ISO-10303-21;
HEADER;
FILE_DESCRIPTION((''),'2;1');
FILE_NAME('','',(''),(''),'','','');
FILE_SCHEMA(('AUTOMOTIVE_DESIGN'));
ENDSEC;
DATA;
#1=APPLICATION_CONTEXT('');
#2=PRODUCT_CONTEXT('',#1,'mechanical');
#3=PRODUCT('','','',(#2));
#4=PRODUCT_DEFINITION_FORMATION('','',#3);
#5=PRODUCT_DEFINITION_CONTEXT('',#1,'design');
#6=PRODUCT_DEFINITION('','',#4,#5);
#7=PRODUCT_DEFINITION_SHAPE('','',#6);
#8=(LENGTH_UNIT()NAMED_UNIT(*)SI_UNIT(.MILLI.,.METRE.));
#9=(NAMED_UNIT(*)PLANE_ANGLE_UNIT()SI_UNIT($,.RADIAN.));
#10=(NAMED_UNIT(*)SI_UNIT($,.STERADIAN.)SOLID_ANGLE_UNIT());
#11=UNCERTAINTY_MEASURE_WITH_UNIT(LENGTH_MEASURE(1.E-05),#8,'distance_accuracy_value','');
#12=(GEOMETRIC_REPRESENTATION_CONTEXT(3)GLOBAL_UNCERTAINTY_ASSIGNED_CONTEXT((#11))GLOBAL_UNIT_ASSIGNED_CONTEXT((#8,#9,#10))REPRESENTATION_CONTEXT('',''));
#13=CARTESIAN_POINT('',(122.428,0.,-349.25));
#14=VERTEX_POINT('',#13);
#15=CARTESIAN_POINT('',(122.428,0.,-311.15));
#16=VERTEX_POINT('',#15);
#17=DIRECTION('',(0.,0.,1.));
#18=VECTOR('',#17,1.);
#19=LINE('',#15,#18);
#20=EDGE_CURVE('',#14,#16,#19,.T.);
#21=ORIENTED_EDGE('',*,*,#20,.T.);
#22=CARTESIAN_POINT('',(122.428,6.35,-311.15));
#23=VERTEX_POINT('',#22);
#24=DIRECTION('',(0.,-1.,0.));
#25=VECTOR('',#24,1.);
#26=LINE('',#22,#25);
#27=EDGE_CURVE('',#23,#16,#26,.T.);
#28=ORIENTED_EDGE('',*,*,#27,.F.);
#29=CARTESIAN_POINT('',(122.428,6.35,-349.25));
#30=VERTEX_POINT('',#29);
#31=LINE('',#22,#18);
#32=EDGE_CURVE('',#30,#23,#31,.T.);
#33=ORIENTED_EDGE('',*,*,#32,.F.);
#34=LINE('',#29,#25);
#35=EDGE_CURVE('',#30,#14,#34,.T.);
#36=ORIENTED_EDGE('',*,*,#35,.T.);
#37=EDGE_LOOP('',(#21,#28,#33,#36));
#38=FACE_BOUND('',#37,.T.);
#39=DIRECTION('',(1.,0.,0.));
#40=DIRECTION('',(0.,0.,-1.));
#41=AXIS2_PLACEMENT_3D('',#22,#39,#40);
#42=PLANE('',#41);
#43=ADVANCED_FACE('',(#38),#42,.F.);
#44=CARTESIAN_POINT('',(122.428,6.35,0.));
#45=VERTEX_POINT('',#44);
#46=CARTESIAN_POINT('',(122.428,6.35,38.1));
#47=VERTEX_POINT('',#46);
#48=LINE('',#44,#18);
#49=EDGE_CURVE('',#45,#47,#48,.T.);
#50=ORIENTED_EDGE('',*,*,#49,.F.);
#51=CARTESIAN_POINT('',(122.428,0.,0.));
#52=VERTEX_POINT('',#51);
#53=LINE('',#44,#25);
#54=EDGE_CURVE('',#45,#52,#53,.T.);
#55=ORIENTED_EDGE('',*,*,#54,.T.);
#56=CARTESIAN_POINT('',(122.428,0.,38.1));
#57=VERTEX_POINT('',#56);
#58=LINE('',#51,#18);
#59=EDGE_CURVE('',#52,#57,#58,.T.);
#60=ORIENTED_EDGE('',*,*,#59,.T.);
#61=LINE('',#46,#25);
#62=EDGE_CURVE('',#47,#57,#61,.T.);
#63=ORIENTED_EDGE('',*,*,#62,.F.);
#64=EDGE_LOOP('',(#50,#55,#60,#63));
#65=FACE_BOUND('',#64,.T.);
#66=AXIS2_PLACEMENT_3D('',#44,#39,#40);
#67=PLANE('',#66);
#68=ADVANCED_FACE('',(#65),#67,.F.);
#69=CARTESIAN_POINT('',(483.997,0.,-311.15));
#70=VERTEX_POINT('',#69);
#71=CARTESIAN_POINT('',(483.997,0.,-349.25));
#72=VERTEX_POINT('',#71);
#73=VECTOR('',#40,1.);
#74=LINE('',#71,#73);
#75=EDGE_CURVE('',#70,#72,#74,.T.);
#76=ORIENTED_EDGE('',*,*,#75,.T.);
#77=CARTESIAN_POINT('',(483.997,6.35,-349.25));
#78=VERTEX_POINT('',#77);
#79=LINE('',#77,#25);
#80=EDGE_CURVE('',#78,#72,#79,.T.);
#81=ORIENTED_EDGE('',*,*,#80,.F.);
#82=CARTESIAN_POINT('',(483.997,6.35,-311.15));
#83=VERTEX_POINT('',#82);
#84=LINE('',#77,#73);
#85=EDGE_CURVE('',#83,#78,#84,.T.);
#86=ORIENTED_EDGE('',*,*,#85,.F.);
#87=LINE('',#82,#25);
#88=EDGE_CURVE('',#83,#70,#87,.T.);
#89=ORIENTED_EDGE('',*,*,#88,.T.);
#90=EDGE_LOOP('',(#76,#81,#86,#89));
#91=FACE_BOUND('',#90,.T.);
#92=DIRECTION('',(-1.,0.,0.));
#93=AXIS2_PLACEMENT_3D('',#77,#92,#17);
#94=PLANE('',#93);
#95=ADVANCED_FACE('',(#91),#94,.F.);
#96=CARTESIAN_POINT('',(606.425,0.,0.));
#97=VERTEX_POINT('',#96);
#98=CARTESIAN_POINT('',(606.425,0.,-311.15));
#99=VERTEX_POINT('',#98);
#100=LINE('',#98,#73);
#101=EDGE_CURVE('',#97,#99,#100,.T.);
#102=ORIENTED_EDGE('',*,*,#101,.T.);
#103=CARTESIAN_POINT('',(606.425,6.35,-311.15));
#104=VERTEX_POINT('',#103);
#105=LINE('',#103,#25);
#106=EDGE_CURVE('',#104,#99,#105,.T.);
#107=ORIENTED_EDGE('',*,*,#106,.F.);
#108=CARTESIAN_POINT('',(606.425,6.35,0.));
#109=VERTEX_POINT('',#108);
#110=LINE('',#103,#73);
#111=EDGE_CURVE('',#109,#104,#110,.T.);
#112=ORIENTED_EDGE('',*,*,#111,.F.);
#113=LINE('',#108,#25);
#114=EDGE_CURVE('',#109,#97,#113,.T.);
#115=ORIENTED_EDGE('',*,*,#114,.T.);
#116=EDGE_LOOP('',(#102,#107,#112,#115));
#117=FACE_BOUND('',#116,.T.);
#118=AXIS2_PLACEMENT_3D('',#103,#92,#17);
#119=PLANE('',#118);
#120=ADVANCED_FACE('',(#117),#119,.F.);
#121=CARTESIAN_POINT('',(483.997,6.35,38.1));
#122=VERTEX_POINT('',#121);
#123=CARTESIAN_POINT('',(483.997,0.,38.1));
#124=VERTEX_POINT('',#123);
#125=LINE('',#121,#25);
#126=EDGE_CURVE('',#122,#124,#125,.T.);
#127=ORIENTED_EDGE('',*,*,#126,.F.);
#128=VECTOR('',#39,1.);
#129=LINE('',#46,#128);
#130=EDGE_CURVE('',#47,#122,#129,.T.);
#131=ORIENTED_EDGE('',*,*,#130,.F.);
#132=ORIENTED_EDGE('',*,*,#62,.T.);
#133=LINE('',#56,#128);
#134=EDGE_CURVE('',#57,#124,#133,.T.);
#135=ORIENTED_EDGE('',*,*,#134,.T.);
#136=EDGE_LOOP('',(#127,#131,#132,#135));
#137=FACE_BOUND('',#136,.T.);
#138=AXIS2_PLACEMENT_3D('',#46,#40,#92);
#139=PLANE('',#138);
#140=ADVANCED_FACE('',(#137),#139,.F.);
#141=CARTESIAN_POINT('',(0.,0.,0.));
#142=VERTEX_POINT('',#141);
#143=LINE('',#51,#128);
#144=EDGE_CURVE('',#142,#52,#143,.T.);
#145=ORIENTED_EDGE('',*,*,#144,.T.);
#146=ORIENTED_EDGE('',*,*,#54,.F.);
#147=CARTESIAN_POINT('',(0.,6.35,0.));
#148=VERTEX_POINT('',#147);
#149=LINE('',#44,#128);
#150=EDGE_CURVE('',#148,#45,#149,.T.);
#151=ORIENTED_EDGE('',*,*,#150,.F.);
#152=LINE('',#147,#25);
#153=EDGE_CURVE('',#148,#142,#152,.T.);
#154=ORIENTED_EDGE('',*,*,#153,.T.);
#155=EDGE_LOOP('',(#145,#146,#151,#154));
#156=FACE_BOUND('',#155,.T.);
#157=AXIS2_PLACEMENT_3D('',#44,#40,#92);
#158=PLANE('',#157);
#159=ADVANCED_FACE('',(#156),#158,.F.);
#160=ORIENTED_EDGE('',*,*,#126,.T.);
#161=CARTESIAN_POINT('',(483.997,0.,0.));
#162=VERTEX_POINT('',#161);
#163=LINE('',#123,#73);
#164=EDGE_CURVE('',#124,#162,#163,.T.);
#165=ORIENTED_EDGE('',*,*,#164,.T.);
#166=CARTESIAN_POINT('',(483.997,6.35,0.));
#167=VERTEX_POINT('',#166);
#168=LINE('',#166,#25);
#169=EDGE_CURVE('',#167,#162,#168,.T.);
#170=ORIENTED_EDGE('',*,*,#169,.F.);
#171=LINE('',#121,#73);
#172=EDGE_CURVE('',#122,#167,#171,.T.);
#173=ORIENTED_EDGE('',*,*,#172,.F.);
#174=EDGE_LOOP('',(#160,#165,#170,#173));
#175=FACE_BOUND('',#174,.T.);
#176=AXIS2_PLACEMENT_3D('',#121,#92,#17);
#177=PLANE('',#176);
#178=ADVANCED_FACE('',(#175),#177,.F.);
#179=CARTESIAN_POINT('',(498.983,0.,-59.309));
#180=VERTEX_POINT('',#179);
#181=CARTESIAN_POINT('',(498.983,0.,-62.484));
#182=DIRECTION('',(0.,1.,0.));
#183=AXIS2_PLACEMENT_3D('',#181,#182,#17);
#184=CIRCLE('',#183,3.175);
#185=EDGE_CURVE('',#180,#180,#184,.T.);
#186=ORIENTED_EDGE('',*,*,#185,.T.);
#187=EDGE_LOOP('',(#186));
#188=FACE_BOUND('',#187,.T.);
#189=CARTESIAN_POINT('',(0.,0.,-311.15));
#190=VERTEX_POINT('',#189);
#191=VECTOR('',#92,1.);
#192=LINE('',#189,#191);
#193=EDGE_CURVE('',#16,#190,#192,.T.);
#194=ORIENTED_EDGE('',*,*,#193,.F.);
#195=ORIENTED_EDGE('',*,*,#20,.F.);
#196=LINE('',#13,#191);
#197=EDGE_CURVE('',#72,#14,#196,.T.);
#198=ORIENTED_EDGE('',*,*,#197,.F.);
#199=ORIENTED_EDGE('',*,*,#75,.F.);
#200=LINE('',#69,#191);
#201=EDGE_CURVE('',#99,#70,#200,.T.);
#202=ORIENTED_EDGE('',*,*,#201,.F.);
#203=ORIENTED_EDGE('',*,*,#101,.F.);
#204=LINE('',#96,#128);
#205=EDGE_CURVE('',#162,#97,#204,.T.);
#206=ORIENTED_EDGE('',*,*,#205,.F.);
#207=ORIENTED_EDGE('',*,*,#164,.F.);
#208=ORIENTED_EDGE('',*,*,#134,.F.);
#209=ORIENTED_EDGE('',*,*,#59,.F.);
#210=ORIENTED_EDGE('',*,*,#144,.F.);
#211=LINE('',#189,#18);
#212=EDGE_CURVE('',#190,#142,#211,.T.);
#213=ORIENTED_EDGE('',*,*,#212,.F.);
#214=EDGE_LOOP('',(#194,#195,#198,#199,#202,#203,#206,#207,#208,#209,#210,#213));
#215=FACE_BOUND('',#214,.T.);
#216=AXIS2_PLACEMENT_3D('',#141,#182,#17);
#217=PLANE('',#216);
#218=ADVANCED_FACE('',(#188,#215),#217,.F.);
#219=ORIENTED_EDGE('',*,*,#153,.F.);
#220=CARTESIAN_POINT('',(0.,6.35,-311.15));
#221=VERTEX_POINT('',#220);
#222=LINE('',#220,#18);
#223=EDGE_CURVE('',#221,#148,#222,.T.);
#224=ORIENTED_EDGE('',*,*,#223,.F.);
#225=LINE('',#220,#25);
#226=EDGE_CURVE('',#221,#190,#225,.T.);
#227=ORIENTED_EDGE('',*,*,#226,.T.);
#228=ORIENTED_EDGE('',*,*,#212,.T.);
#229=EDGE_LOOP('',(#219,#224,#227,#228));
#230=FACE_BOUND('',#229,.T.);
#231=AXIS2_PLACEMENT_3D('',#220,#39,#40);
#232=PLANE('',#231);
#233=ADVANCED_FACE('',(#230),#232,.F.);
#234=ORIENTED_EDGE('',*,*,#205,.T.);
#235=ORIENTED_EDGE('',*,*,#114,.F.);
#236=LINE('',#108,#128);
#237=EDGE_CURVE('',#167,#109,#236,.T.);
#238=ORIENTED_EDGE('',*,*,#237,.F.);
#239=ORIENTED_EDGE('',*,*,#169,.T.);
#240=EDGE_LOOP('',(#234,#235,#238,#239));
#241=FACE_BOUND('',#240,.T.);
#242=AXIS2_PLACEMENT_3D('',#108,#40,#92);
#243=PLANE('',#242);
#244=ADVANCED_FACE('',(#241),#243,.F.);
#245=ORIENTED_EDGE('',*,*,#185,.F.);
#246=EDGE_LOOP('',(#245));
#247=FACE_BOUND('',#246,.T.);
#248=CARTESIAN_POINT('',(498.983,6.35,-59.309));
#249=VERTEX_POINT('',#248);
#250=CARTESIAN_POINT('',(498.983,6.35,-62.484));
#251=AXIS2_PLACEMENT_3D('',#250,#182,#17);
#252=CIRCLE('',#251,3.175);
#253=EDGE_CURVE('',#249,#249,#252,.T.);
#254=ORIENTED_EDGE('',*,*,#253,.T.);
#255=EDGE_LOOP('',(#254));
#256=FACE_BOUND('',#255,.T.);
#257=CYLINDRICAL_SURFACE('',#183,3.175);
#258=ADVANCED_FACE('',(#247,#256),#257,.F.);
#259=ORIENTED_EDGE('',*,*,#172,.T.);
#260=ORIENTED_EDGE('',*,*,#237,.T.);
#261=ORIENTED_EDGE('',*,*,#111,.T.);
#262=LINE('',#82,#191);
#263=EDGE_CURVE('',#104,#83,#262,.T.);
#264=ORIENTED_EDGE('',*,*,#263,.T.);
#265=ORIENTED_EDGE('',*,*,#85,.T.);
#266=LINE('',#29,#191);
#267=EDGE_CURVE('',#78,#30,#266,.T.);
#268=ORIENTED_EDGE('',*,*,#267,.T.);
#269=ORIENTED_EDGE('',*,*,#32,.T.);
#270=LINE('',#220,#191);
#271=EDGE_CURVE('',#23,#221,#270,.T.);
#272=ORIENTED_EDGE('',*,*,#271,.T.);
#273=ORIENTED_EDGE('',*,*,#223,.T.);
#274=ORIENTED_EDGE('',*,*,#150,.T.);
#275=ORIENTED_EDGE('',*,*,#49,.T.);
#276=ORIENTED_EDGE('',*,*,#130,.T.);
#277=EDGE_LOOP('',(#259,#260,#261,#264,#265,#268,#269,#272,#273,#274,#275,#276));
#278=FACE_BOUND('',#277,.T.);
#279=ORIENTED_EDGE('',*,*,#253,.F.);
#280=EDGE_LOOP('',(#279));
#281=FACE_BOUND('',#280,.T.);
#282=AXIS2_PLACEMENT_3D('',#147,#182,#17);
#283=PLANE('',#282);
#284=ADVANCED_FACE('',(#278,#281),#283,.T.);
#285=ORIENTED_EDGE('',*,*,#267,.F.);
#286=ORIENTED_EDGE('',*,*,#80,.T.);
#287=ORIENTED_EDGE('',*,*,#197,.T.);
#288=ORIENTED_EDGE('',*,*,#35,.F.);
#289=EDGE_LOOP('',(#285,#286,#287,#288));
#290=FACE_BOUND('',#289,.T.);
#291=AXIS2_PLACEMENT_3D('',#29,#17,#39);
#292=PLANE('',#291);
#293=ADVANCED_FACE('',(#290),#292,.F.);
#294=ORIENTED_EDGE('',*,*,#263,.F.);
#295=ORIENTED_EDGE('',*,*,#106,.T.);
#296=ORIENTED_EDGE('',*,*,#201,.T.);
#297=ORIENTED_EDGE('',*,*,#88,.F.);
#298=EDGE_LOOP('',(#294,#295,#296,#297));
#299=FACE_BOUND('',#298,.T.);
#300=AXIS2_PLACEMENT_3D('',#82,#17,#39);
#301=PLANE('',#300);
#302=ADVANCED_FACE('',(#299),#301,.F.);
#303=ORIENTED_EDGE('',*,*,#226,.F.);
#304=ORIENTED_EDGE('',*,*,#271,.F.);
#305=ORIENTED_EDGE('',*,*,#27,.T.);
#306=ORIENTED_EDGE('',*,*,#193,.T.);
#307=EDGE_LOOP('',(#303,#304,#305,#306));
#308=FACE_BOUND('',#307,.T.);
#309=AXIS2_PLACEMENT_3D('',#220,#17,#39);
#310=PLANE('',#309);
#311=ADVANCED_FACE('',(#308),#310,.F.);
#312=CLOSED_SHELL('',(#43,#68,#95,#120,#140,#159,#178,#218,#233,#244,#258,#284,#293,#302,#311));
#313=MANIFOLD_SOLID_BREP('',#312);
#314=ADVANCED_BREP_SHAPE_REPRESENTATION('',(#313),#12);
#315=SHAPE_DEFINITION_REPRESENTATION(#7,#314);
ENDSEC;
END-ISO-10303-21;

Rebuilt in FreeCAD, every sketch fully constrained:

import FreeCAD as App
import Part
import Sketcher
from FreeCAD import Vector
Q = App.Units.Quantity


def add_polygon(sketch, points):
    """Adds a closed chain of lines whose ends are joined by coincident constraints."""
    first, n = sketch.GeometryCount, len(points)
    for a, b in zip(points, points[1:] + points[:1]):
        sketch.addGeometry(Part.LineSegment(App.Vector(*a, 0), App.Vector(*b, 0)), False)
    for i in range(n):
        sketch.addConstraint(Sketcher.Constraint("Coincident", first + i, 2, first + (i + 1) % n, 1))

doc = App.newDocument("Part")
body = doc.addObject("PartDesign::Body", "Body")

# Sketch on XZ plane
sketch1 = body.newObject("Sketcher::SketchObject", "Sketch")
sketch1.AttachmentSupport = (doc.getObject("XZ_Plane"), [""])
sketch1.MapMode = "FlatFace"
add_polygon(sketch1, [(122.428, 0), (122.428, 38.1), (483.997, 38.1), (483.997, 0), (606.425, 0), (606.425, -311.15), (483.997, -311.15), (483.997, -349.25), (122.428, -349.25), (122.428, -311.15), (0, -311.15), (0, 0)])  # lines 0-11
sketch1.addConstraint(Sketcher.Constraint("Vertical", 0))
sketch1.addConstraint(Sketcher.Constraint("Horizontal", 1))
sketch1.addConstraint(Sketcher.Constraint("Vertical", 2))
sketch1.addConstraint(Sketcher.Constraint("Horizontal", 3))
sketch1.addConstraint(Sketcher.Constraint("Vertical", 4))
sketch1.addConstraint(Sketcher.Constraint("Horizontal", 5))
sketch1.addConstraint(Sketcher.Constraint("Vertical", 6))
sketch1.addConstraint(Sketcher.Constraint("Horizontal", 7))
sketch1.addConstraint(Sketcher.Constraint("Vertical", 8))
sketch1.addConstraint(Sketcher.Constraint("Horizontal", 9))
sketch1.addConstraint(Sketcher.Constraint("Vertical", 10))
sketch1.addConstraint(Sketcher.Constraint("Horizontal", 11))
sketch1.addConstraint(Sketcher.Constraint("Coincident", 10, 2, -1, 1))
sketch1.addConstraint(Sketcher.Constraint("PointOnObject", 2, 2, -1))
sketch1.addConstraint(Sketcher.Constraint("Horizontal", 5, 2, 8, 2))
sketch1.addConstraint(Sketcher.Constraint("Vertical", 2, 2, 5, 2))
sketch1.addConstraint(Sketcher.Constraint("Vertical", 0, 2, 7, 2))
sketch1.addConstraint(Sketcher.Constraint("Equal", 5, 9))
sketch1.addConstraint(Sketcher.Constraint("Equal", 2, 6))
sketch1.addConstraint(Sketcher.Constraint("DistanceY", 0, 1, 0, 2, Q("1.5 in")))
sketch1.addConstraint(Sketcher.Constraint("DistanceX", 3, 1, 3, 2, Q("4.82 in")))
sketch1.addConstraint(Sketcher.Constraint("DistanceY", 4, 2, 4, 1, Q("12.25 in")))
sketch1.addConstraint(Sketcher.Constraint("DistanceX", 1, 1, 1, 2, Q("14.235 in")))
pad1 = body.newObject("PartDesign::Pad", "Pad")
pad1.Profile = sketch1
pad1.Length = Q("0.25 in")
pad1.Reversed = True

# Sketch on XZ plane
sketch2 = body.newObject("Sketcher::SketchObject", "Sketch001")
sketch2.AttachmentSupport = (doc.getObject("XZ_Plane"), [""])
sketch2.MapMode = "FlatFace"
sketch2.AttachmentOffset = App.Placement(Vector(0, 0, -0.25 * 25.4), App.Rotation())
sketch2.addGeometry(Part.Circle(Vector(498.983, -62.484, 0), Vector(0, 0, 1), 3.175), False)
sketch2.addConstraint(Sketcher.Constraint("Diameter", 0, Q("0.25 in")))
sketch2.addConstraint(Sketcher.Constraint("DistanceY", 0, 3, -1, 1, Q("2.46 in")))
sketch2.addConstraint(Sketcher.Constraint("DistanceX", -1, 1, 0, 3, Q("19.645 in")))
pocket1 = body.newObject("PartDesign::Pocket", "Pocket")
pocket1.Profile = sketch2
pocket1.Type = "ThroughAll"
pocket1.Reversed = True

doc.recompute()
